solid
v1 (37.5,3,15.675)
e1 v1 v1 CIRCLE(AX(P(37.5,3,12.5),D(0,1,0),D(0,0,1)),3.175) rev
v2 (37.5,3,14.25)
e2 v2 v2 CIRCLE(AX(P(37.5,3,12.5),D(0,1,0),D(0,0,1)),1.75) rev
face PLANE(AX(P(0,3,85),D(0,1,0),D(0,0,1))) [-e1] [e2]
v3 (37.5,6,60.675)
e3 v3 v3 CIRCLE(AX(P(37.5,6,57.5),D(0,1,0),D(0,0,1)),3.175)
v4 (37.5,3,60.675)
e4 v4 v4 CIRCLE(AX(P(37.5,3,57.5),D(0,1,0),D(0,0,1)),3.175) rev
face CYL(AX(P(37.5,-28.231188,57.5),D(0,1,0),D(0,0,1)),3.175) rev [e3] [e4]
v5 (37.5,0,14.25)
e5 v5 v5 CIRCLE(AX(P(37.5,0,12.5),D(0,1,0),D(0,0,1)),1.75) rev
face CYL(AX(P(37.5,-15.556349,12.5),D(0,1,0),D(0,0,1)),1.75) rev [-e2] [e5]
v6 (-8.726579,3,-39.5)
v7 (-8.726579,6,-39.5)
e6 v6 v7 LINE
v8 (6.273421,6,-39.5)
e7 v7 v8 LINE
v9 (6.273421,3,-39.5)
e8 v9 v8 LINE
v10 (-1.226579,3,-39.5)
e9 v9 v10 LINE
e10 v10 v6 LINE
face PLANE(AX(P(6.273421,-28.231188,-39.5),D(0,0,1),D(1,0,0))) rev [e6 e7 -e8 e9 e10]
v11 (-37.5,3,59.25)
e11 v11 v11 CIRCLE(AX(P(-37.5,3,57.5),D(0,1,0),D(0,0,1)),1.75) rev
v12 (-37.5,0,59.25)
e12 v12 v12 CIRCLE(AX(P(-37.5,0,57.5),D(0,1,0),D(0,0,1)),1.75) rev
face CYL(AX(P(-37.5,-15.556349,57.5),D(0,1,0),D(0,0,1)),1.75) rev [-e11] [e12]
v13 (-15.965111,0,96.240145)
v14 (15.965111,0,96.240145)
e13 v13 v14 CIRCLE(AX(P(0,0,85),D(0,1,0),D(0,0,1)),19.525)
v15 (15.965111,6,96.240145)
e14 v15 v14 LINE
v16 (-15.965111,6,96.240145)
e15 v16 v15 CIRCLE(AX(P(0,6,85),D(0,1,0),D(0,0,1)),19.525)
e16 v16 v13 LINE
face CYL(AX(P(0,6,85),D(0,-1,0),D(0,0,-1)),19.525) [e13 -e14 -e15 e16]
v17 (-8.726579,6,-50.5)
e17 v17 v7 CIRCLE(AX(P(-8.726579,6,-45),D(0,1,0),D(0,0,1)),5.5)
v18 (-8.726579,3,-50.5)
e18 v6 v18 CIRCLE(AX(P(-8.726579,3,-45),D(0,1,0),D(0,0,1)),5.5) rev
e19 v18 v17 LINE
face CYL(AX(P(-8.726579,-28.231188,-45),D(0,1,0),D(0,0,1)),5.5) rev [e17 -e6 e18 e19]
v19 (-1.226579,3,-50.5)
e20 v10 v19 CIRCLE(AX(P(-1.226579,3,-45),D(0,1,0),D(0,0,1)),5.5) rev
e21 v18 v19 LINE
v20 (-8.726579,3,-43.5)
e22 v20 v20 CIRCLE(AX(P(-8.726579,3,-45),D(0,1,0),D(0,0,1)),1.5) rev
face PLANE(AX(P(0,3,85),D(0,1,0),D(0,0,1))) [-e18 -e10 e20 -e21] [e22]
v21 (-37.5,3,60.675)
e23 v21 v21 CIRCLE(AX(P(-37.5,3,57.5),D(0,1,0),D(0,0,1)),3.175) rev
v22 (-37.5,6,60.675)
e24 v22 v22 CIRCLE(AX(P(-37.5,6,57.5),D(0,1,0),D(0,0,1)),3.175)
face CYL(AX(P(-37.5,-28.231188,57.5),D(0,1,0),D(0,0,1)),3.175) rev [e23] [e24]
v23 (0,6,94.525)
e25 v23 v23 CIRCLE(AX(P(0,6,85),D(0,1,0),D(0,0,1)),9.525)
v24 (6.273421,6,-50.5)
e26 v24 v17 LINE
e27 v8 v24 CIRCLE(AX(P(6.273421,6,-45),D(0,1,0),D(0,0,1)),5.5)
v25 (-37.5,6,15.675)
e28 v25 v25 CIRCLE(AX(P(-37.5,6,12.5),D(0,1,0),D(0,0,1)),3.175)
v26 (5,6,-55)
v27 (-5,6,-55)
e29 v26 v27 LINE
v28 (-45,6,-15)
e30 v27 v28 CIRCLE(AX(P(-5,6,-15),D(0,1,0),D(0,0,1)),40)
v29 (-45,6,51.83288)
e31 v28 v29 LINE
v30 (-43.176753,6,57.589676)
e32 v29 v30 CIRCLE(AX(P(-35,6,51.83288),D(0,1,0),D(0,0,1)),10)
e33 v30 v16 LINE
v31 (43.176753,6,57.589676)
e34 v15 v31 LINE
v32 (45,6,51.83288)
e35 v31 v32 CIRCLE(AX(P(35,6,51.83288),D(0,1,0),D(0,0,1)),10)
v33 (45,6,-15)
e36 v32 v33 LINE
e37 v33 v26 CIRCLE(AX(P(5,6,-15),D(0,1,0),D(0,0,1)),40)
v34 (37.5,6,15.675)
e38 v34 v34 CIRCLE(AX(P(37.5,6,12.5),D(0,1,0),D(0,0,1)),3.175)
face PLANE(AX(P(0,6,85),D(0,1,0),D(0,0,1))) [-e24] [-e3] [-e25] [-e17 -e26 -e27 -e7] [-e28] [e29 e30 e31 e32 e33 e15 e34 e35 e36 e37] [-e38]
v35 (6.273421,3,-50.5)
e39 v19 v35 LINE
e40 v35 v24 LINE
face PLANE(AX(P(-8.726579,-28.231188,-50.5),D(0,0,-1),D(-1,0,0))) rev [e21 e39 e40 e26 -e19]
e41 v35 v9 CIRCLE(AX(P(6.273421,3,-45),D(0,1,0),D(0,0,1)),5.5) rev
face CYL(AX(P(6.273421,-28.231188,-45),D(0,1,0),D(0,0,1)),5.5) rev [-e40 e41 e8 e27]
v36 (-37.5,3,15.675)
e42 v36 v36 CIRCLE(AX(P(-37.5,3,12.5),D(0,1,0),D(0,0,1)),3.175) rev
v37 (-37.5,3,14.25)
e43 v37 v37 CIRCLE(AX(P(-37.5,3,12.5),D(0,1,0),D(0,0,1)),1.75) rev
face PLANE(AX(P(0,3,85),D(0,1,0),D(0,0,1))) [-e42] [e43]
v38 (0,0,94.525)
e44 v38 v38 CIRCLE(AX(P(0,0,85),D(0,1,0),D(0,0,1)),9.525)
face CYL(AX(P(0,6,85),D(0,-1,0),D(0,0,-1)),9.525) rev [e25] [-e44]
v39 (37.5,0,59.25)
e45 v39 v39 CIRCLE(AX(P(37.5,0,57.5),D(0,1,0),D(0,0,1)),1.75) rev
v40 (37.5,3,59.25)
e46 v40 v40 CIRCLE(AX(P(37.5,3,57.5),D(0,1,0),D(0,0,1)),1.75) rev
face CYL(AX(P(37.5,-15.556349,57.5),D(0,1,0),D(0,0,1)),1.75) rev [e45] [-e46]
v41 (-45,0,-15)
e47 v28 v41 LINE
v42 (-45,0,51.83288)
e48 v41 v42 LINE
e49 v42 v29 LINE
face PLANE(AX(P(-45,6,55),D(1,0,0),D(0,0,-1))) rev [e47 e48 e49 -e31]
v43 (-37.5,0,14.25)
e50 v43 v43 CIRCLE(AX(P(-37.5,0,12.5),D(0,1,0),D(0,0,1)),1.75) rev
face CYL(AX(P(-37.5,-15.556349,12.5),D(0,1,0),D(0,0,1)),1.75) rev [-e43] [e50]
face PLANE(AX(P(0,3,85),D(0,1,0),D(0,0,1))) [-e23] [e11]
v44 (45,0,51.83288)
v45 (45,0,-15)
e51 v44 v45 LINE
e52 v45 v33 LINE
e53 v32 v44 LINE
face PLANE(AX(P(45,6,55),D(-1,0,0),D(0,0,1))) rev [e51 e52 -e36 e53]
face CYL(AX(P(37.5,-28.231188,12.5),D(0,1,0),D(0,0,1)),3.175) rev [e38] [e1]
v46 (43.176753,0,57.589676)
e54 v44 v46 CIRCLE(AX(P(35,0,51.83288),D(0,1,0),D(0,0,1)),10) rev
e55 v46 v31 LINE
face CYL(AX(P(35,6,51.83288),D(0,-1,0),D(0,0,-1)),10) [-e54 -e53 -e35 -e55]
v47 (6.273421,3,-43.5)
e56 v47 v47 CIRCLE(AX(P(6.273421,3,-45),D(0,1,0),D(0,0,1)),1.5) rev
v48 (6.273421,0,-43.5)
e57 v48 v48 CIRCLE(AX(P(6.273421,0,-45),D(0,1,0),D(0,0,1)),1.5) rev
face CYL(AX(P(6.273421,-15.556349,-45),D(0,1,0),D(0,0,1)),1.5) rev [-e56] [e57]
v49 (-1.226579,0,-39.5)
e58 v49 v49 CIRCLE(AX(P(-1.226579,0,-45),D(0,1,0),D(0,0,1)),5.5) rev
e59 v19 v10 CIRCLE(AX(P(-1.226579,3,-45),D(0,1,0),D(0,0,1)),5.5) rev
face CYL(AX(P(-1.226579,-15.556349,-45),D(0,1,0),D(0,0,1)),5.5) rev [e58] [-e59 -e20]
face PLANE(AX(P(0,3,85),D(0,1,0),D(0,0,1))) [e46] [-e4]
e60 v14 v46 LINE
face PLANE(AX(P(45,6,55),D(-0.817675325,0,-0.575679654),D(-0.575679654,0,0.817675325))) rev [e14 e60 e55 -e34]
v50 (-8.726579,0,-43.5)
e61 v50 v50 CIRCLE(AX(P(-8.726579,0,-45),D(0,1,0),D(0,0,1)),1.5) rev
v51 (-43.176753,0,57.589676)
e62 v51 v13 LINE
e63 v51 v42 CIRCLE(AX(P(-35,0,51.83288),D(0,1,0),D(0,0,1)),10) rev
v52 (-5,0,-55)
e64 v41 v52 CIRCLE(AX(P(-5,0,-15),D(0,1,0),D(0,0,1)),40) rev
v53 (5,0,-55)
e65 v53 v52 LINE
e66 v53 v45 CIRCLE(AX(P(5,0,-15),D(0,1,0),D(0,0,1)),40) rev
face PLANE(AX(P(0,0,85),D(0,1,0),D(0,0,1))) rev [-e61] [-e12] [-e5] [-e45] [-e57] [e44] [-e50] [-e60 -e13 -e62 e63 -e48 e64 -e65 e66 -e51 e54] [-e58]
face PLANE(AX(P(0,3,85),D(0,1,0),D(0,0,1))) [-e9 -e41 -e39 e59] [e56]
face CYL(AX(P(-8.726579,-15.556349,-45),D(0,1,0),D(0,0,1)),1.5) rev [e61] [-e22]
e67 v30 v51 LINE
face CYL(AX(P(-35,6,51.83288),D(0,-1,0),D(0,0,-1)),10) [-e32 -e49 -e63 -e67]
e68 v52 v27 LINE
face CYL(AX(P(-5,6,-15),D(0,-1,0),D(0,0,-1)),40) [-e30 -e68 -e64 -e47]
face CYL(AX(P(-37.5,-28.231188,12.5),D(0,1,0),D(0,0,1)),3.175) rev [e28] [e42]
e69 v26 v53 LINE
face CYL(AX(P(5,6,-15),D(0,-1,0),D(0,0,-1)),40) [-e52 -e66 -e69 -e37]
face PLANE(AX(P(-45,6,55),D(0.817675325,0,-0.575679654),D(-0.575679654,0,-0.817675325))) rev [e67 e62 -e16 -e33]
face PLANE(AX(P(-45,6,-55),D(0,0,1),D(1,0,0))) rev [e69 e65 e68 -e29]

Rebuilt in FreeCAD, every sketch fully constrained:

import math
import FreeCAD as App
import Part
import Sketcher
Q = App.Units.Quantity


def edges_at(feature, points):
    """Names of the edges that pass closest to the given points."""
    edges = feature.Shape.Edges
    near = lambda p: min(range(len(edges)), key=lambda i: edges[i].distToShape(Part.Vertex(*p))[0])
    return sorted({f"Edge{near(p) + 1}" for p in points})

doc = App.newDocument("Part")
body = doc.addObject("PartDesign::Body", "Body")

# Sketch on XZ plane
sketch1 = body.newObject("Sketcher::SketchObject", "Sketch")
sketch1.AttachmentSupport = (doc.getObject("XZ_Plane"), [""])
sketch1.MapMode = "FlatFace"
sketch1.addGeometry([
    Part.LineSegment(App.Vector(16, 96, 0), App.Vector(45, 55, 0)),  # 0
    Part.LineSegment(App.Vector(45, 55, 0), App.Vector(45, -55, 0)),  # 1
    Part.LineSegment(App.Vector(45, -55, 0), App.Vector(-45, -55, 0)),  # 2
    Part.LineSegment(App.Vector(-45, -55, 0), App.Vector(-45, 55, 0)),  # 3
    Part.LineSegment(App.Vector(-45, 55, 0), App.Vector(-16, 96, 0)),  # 4
    Part.ArcOfCircle(Part.Circle(App.Vector(0, 85, 0), App.Vector(0, 0, 1), 20), math.radians(35), math.radians(145)),  # 5
    Part.Circle(App.Vector(0, 85, 0), App.Vector(0, 0, 1), 10),  # 6
], False)
sketch1.addConstraint([
    Sketcher.Constraint("Coincident", 0, 2, 1, 1),
    Sketcher.Constraint("Coincident", 1, 2, 2, 1),
    Sketcher.Constraint("Coincident", 2, 2, 3, 1),
    Sketcher.Constraint("Coincident", 3, 2, 4, 1),
    Sketcher.Constraint("Tangent", 4, 2, 5, 2),
    Sketcher.Constraint("Tangent", 5, 1, 0, 1),
    Sketcher.Constraint("Vertical", 1),
    Sketcher.Constraint("Horizontal", 2),
    Sketcher.Constraint("Vertical", 3),
    Sketcher.Constraint("Coincident", 6, 3, 5, 3),
    Sketcher.Constraint("Symmetric", 0, 2, 2, 2, -1, 1),
    Sketcher.Constraint("Symmetric", 4, 2, 5, 1, -2),
    Sketcher.Constraint("Diameter", 6, Q("19.05 mm")),
    Sketcher.Constraint("DistanceX", 2, 2, 2, 1, Q("90 mm")),
    Sketcher.Constraint("DistanceY", 1, 2, 1, 1, Q("110 mm")),
    Sketcher.Constraint("DistanceY", -1, 1, 5, 3, Q("85 mm")),
    Sketcher.Constraint("Radius", 5, Q("19.525 mm")),
])
pad1 = body.newObject("PartDesign::Pad", "Pad")
pad1.Profile = sketch1
pad1.Length = 6
pad1.Reversed = True

# Sketch on XZ plane
sketch2 = body.newObject("Sketcher::SketchObject", "Sketch001")
sketch2.AttachmentSupport = (doc.getObject("XZ_Plane"), [""])
sketch2.MapMode = "FlatFace"
sketch2.AttachmentOffset = App.Placement(App.Vector(0, 0, -6), App.Rotation())
sketch2.addGeometry([
    Part.Circle(App.Vector(6.3, -45, 0), App.Vector(0, 0, 1), 1.5),  # 0
    Part.Circle(App.Vector(-8.7, -45, 0), App.Vector(0, 0, 1), 1.5),  # 1
    Part.Circle(App.Vector(-1.2, -45, 0), App.Vector(0, 0, 1), 5.5),  # 2
    Part.Circle(App.Vector(37.5, 57.5, 0), App.Vector(0, 0, 1), 1.8),  # 3
    Part.Circle(App.Vector(-37.5, 57.5, 0), App.Vector(0, 0, 1), 1.8),  # 4
    Part.Circle(App.Vector(-37.5, 12.5, 0), App.Vector(0, 0, 1), 1.8),  # 5
    Part.Circle(App.Vector(37.5, 12.5, 0), App.Vector(0, 0, 1), 1.8),  # 6
], False)
sketch2.addConstraint([
    Sketcher.Constraint("Equal", 0, 1),
    Sketcher.Constraint("Equal", 3, 4),
    Sketcher.Constraint("Equal", 4, 5),
    Sketcher.Constraint("Equal", 5, 6),
    Sketcher.Constraint("Symmetric", 3, 3, 4, 3, -2),
    Sketcher.Constraint("Symmetric", 5, 3, 6, 3, -2),
    Sketcher.Constraint("Horizontal", 0, 3, 1, 3),
    Sketcher.Constraint("Horizontal", 1, 3, 2, 3),
    Sketcher.Constraint("Vertical", 4, 3, 5, 3),
    Sketcher.Constraint("Diameter", 0, Q("3 mm")),
    Sketcher.Constraint("Diameter", 2, Q("11 mm")),
    Sketcher.Constraint("Diameter", 3, Q("3.5 mm")),
    Sketcher.Constraint("DistanceY", 0, 3, -1, 1, Q("45 mm")),
    Sketcher.Constraint("DistanceX", 1, 3, 0, 3, Q("15 mm")),
    Sketcher.Constraint("DistanceX", 4, 3, 3, 3, Q("75 mm")),
    Sketcher.Constraint("DistanceY", 5, 3, 4, 3, Q("45 mm")),
    Sketcher.Constraint("DistanceY", -1, 1, 3, 3, Q("57.5 mm")),
    Sketcher.Constraint("DistanceX", 2, 3, 0, 3, Q("7.5 mm")),
    Sketcher.Constraint("DistanceX", -1, 1, 0, 3, Q("6.273421 mm")),
])
pocket1 = body.newObject("PartDesign::Pocket", "Pocket")
pocket1.Profile = sketch2
pocket1.Length = 6
pocket1.Reversed = True
doc.recompute()

fillet = body.newObject("PartDesign::Fillet", "Fillet")
fillet.Base = (pocket1, edges_at(pocket1, [(45, 3, 55), (-45, 3, 55)]))
fillet.Radius = 10
doc.recompute()

fillet2 = body.newObject("PartDesign::Fillet", "Fillet001")
fillet2.Base = (fillet, edges_at(fillet, [(-45, 3, -55), (45, 3, -55)]))
fillet2.Radius = 40

# Sketch on XZ plane
sketch3 = body.newObject("Sketcher::SketchObject", "Sketch002")
sketch3.AttachmentSupport = (doc.getObject("XZ_Plane"), [""])
sketch3.MapMode = "FlatFace"
sketch3.AttachmentOffset = App.Placement(App.Vector(0, 0, -6), App.Rotation())
sketch3.addGeometry([
    Part.Circle(App.Vector(-37.5, 12.5, 0), App.Vector(0, 0, 1), 3.2),  # 0
    Part.Circle(App.Vector(37.5, 12.5, 0), App.Vector(0, 0, 1), 3.2),  # 1
    Part.Circle(App.Vector(37.5, 57.5, 0), App.Vector(0, 0, 1), 3.2),  # 2
    Part.Circle(App.Vector(-37.5, 57.5, 0), App.Vector(0, 0, 1), 3.2),  # 3
    Part.LineSegment(App.Vector(6.3, -50.5, 0), App.Vector(-8.7, -50.5, 0)),  # 4
    Part.ArcOfCircle(Part.Circle(App.Vector(-8.7, -45, 0), App.Vector(0, 0, 1), 5.5), math.radians(90), math.radians(270)),  # 5
    Part.LineSegment(App.Vector(-8.7, -39.5, 0), App.Vector(6.3, -39.5, 0)),  # 6
    Part.ArcOfCircle(Part.Circle(App.Vector(6.3, -45, 0), App.Vector(0, 0, 1), 5.5), math.radians(-90), math.radians(90)),  # 7
], False)
sketch3.addConstraint([
    Sketcher.Constraint("Tangent", 4, 2, 5, 2),
    Sketcher.Constraint("Tangent", 5, 1, 6, 1),
    Sketcher.Constraint("Tangent", 6, 2, 7, 2),
    Sketcher.Constraint("Tangent", 7, 1, 4, 1),
    Sketcher.Constraint("Horizontal", 4),
    Sketcher.Constraint("Horizontal", 6),
    Sketcher.Constraint("Equal", 0, 1),
    Sketcher.Constraint("Equal", 1, 2),
    Sketcher.Constraint("Equal", 2, 3),
    Sketcher.Constraint("Symmetric", 0, 3, 1, 3, -2),
    Sketcher.Constraint("Symmetric", 2, 3, 3, 3, -2),
    Sketcher.Constraint("Vertical", 1, 3, 2, 3),
    Sketcher.Constraint("Radius", 5, Q("5.5 mm")),
    Sketcher.Constraint("Diameter", 0, Q("6.35 mm")),
    Sketcher.Constraint("DistanceX", 4, 2, 4, 1, Q("15 mm")),
    Sketcher.Constraint("DistanceY", 5, 3, -1, 1, Q("45 mm")),
    Sketcher.Constraint("DistanceX", 0, 3, 1, 3, Q("75 mm")),
    Sketcher.Constraint("DistanceY", 1, 3, 2, 3, Q("45 mm")),
    Sketcher.Constraint("DistanceY", 4, 2, 0, 3, Q("63 mm")),
    Sketcher.Constraint("DistanceX", 5, 3, -1, 1, Q("8.726579 mm")),
])
pocket2 = body.newObject("PartDesign::Pocket", "Pocket001")
pocket2.Profile = sketch3
pocket2.Length = 3
pocket2.Reversed = True

doc.recompute()
